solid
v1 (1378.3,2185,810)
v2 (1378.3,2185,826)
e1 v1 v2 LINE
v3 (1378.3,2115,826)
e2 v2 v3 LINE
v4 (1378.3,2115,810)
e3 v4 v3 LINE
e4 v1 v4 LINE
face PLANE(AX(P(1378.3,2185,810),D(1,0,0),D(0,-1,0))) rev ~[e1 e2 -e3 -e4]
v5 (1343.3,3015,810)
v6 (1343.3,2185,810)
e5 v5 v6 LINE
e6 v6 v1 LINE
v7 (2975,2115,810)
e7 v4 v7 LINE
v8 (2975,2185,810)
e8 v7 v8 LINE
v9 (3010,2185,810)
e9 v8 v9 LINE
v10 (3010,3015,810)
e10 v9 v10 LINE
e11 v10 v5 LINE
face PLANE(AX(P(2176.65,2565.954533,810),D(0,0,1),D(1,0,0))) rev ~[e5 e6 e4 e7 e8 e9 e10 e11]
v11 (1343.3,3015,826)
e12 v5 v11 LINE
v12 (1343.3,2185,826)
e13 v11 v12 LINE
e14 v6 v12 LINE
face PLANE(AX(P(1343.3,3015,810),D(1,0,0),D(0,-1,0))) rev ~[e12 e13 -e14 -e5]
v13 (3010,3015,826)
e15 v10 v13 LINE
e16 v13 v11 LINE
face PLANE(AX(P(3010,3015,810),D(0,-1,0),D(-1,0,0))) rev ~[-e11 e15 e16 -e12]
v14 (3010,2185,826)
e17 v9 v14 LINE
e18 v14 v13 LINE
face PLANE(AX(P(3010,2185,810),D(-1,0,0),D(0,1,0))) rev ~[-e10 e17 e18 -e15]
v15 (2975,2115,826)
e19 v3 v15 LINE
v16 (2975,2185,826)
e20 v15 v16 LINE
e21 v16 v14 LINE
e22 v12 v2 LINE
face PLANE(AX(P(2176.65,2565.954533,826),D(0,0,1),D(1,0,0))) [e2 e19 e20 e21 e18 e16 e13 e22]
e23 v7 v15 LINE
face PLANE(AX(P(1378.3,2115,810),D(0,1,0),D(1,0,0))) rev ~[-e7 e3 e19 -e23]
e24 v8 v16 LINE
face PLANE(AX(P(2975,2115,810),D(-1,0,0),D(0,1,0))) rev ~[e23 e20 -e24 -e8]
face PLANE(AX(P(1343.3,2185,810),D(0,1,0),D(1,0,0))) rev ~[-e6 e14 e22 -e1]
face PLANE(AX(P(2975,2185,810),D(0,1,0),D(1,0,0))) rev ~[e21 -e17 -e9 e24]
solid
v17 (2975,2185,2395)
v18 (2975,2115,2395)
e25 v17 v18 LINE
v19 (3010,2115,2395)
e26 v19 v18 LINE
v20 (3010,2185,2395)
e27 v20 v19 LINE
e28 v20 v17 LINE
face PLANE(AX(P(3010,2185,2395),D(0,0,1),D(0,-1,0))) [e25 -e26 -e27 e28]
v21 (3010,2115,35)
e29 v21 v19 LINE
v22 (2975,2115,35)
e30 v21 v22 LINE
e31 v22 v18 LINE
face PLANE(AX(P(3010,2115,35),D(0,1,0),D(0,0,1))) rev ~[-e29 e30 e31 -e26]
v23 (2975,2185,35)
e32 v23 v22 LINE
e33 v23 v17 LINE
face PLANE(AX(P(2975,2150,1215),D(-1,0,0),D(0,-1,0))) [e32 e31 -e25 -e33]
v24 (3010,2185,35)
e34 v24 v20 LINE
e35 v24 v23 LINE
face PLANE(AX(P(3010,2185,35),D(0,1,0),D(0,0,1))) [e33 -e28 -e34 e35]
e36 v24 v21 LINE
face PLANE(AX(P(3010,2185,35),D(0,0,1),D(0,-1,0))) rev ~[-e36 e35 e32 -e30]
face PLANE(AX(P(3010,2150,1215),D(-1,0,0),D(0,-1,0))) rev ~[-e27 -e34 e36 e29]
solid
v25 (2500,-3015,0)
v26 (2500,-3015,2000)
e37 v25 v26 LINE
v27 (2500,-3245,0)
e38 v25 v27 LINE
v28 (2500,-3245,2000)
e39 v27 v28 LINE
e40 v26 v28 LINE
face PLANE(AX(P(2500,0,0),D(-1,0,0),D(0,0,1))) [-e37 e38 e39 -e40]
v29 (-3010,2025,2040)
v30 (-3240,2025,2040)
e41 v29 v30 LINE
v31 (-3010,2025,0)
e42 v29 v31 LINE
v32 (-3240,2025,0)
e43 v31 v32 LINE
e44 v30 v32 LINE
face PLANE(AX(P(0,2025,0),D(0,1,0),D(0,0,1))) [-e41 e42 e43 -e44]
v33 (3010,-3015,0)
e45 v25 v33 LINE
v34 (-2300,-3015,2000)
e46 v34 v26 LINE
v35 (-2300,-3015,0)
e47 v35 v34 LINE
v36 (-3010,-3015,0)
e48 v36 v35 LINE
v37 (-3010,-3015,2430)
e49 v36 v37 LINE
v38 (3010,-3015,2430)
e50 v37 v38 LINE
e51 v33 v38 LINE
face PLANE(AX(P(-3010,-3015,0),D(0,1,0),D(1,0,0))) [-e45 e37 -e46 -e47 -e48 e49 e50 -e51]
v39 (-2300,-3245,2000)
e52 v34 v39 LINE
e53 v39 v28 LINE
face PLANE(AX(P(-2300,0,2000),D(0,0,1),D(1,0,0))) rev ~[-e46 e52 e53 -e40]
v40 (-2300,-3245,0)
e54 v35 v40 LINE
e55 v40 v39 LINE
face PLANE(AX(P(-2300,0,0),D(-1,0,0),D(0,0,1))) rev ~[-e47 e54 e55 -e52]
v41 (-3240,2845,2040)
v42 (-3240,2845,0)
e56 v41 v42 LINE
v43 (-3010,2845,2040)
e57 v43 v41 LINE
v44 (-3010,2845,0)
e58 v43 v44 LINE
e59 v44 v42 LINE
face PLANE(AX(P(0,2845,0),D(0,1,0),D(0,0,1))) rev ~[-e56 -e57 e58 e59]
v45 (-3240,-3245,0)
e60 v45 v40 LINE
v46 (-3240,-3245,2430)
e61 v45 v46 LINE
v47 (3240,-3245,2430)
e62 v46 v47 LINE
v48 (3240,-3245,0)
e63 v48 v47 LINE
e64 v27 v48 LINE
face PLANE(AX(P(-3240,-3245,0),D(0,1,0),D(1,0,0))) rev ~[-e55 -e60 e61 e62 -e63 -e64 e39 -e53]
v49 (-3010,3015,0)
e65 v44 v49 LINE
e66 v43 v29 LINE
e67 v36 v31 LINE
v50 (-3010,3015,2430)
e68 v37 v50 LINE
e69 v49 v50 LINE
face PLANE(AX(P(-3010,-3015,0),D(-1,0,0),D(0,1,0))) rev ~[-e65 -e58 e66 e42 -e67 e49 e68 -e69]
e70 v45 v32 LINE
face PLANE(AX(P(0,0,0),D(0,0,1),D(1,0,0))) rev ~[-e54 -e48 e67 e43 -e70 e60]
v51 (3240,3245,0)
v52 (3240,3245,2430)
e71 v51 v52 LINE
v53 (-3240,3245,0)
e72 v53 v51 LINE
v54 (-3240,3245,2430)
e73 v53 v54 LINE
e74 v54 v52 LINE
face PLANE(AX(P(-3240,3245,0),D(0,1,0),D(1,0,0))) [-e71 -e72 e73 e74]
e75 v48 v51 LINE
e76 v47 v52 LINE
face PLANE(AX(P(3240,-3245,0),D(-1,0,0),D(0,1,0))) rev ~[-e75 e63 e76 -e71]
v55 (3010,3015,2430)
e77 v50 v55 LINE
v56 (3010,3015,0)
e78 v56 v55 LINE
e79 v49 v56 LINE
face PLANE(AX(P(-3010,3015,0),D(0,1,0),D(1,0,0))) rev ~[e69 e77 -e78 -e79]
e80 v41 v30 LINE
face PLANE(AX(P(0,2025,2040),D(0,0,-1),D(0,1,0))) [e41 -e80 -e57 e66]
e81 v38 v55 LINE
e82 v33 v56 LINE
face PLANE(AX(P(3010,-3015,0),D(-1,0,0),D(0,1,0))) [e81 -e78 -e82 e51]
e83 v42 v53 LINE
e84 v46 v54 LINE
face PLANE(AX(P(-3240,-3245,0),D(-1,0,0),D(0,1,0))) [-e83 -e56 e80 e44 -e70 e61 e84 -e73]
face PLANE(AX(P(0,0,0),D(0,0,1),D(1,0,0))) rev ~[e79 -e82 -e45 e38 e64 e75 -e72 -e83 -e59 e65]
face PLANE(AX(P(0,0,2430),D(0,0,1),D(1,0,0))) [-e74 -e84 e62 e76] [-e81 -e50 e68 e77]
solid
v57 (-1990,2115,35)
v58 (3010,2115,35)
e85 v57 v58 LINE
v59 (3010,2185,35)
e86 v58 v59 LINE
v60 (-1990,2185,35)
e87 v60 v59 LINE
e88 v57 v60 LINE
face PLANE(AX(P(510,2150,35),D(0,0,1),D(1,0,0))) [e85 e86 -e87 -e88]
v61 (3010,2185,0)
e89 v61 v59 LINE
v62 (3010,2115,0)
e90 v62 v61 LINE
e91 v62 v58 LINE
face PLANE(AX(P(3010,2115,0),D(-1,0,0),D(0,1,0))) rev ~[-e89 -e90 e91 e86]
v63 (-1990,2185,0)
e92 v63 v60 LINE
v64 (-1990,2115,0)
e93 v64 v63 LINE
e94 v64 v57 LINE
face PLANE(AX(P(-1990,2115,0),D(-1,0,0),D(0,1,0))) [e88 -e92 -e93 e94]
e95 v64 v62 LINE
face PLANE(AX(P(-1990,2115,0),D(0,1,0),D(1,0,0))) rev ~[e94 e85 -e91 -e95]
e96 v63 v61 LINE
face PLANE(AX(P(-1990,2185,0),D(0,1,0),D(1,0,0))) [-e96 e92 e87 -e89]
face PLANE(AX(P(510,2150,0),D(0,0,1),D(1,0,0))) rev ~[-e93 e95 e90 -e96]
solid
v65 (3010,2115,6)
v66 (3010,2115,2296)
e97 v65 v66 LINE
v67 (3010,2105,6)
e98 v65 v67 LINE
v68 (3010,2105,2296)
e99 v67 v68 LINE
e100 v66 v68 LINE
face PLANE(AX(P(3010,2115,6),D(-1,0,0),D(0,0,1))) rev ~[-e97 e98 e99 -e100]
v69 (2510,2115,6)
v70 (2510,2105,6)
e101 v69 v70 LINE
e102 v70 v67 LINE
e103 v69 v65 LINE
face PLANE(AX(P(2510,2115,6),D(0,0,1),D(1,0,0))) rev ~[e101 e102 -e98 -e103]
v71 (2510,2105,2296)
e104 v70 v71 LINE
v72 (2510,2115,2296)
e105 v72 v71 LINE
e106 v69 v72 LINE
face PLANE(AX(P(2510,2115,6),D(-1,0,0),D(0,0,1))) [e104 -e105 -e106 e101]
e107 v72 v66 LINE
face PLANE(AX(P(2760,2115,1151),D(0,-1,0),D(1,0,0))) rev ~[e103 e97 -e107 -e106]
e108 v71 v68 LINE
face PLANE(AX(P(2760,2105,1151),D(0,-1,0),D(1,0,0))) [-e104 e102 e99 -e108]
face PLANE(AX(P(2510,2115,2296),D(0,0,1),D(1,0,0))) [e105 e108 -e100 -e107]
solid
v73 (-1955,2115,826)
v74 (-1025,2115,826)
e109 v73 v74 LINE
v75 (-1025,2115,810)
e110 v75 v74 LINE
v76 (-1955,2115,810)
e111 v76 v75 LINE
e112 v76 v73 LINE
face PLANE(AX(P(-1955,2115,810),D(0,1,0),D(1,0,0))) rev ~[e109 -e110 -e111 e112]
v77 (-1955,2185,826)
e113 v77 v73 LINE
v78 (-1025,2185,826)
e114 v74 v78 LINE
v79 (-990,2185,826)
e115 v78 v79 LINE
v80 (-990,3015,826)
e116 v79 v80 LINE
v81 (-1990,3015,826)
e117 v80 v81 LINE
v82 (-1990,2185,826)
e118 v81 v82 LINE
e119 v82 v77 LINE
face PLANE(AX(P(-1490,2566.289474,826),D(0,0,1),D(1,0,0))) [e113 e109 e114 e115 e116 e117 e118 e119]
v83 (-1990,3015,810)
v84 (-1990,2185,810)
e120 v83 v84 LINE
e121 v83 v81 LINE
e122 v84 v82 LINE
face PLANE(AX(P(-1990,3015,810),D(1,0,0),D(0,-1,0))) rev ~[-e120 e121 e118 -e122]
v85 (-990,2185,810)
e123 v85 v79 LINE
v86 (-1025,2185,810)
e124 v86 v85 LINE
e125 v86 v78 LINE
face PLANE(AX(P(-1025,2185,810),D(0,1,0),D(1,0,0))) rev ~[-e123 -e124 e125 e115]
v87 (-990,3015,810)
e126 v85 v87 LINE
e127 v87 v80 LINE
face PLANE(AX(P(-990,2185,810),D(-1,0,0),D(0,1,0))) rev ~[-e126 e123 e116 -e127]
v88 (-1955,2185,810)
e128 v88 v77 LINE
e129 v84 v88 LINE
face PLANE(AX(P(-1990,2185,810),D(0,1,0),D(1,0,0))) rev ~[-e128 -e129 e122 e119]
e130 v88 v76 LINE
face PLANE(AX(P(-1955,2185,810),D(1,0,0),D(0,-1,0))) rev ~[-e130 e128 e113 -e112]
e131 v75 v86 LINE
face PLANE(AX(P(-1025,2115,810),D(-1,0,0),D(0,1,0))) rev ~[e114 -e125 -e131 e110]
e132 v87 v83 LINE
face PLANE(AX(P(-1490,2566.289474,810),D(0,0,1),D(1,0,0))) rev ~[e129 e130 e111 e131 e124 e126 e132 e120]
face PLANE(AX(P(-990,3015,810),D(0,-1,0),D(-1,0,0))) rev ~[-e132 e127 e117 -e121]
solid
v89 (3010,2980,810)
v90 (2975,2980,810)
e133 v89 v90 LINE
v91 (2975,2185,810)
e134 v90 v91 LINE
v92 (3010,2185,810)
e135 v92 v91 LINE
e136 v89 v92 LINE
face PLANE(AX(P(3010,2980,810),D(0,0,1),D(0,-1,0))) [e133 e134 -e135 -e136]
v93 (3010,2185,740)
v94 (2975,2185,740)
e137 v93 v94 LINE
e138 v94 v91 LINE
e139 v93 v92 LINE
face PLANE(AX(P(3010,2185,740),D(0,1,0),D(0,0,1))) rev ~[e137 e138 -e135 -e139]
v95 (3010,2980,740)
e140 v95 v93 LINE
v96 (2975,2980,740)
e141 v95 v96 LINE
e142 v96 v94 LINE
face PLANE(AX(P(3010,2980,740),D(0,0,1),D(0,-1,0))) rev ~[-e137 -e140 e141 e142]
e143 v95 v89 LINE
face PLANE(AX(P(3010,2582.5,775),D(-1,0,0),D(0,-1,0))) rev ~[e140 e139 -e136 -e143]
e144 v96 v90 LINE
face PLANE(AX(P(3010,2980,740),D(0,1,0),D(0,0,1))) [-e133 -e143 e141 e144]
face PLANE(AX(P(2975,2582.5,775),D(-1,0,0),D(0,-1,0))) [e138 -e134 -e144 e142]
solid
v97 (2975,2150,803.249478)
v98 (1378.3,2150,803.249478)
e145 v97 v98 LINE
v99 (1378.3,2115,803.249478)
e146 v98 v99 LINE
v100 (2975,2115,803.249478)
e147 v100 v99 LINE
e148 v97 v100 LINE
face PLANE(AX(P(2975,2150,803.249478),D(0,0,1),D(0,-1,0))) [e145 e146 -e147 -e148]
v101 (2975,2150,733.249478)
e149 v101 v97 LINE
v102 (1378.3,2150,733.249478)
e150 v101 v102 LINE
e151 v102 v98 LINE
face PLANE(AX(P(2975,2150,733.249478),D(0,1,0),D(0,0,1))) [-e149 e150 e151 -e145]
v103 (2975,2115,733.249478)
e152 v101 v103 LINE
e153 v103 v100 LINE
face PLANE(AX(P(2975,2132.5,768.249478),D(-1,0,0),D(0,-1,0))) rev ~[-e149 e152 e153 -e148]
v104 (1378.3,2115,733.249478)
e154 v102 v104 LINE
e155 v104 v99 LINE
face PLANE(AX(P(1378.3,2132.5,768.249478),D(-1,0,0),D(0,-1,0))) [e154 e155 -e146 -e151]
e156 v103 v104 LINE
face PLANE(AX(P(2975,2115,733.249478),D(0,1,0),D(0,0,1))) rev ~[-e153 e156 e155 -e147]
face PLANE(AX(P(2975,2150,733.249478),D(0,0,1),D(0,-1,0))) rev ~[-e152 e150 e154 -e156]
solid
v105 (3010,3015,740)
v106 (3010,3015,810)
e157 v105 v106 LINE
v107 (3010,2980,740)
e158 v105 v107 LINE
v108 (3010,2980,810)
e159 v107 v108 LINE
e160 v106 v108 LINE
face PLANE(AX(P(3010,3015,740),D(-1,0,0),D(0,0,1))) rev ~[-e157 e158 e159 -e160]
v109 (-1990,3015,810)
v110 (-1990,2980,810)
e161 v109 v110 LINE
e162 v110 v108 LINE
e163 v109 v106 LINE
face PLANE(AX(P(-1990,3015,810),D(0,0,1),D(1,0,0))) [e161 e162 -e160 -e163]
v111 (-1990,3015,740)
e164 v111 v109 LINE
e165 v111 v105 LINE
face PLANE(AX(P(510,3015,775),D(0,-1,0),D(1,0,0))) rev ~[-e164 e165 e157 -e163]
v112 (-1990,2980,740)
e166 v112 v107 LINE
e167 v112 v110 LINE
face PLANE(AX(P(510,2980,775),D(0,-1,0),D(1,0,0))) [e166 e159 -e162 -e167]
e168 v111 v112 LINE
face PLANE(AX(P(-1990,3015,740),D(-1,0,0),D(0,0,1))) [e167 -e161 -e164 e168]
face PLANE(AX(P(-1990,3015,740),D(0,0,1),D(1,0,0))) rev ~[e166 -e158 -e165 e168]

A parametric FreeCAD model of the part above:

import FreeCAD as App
import Part
import Sketcher

V = App.Vector


def add_polygon(sketch, points):
    """Adds a closed chain of lines whose ends are joined by coincident constraints."""
    first, n = sketch.GeometryCount, len(points)
    for a, b in zip(points, points[1:] + points[:1]):
        sketch.addGeometry(Part.LineSegment(App.Vector(*a, 0), App.Vector(*b, 0)), False)
    for i in range(n):
        sketch.addConstraint(Sketcher.Constraint("Coincident", first + i, 2, first + (i + 1) % n, 1))

doc = App.newDocument("Part")
body = doc.addObject("PartDesign::Body", "Body")

sketch1 = doc.addObject("Sketcher::SketchObject", "Sketch")
body.addObject(sketch1)
sketch1.AttachmentSupport = (doc.XY_Plane, [""])
sketch1.MapMode = "FlatFace"
add_polygon(sketch1, [(-3240, 3245), (-3240, -3245), (3240, -3245), (3240, 3245)])
add_polygon(sketch1, [(3010, -3015), (-3010, -3015), (-3010, 3015), (3010, 3015)])
sketch1.addConstraint([
    Sketcher.Constraint("Vertical", 0),
    Sketcher.Constraint("Horizontal", 1),
    Sketcher.Constraint("Vertical", 2),
    Sketcher.Constraint("Horizontal", 3),
    Sketcher.Constraint("Horizontal", 4),
    Sketcher.Constraint("Vertical", 5),
    Sketcher.Constraint("Horizontal", 6),
    Sketcher.Constraint("Vertical", 7),
    Sketcher.Constraint("Symmetric", 0, 2, 2, 2, -1, 1),
    Sketcher.Constraint("Symmetric", 4, 2, 6, 2, -1, 1),
    Sketcher.Constraint("DistanceX", 1, 1, 1, 2, 6480.0),
    Sketcher.Constraint("DistanceX", 4, 2, 4, 1, 6020.0),
    Sketcher.Constraint("DistanceY", 0, 2, 0, 1, 6490.0),
    Sketcher.Constraint("DistanceY", 5, 1, 5, 2, 6030.0),
])
pad1 = doc.addObject("PartDesign::Pad", "Pad")
body.addObject(pad1)
pad1.Profile = sketch1
pad1.Length = 2430

sketch2 = doc.addObject("Sketcher::SketchObject", "Sketch001")
body.addObject(sketch2)
sketch2.AttachmentSupport = (doc.XZ_Plane, [""])
sketch2.MapMode = "FlatFace"
add_polygon(sketch2, [(-2300, 2000), (-2300, 0), (2500, 0), (2500, 2000)])
sketch2.addConstraint([
    Sketcher.Constraint("Vertical", 0),
    Sketcher.Constraint("Horizontal", 1),
    Sketcher.Constraint("Vertical", 2),
    Sketcher.Constraint("Horizontal", 3),
    Sketcher.Constraint("PointOnObject", 0, 2, -1),
    Sketcher.Constraint("DistanceX", 1, 1, 1, 2, 4800.0),
    Sketcher.Constraint("DistanceY", 0, 2, 0, 1, 2000.0),
    Sketcher.Constraint("DistanceX", 0, 2, -1, 1, 2300.0),
])
pocket1 = doc.addObject("PartDesign::Pocket", "Pocket")
body.addObject(pocket1)
pocket1.Profile = sketch2
pocket1.Type = "ThroughAll"
pocket1.Reversed = True

sketch3 = doc.addObject("Sketcher::SketchObject", "Sketch002")
body.addObject(sketch3)
sketch3.AttachmentSupport = (doc.YZ_Plane, [""])
sketch3.MapMode = "FlatFace"
add_polygon(sketch3, [(2025, 2040), (2025, 0), (2845, 0), (2845, 2040)])
sketch3.addConstraint([
    Sketcher.Constraint("Vertical", 0),
    Sketcher.Constraint("Horizontal", 1),
    Sketcher.Constraint("Vertical", 2),
    Sketcher.Constraint("Horizontal", 3),
    Sketcher.Constraint("PointOnObject", 0, 2, -1),
    Sketcher.Constraint("DistanceX", 1, 1, 1, 2, 820.0),
    Sketcher.Constraint("DistanceY", 0, 2, 0, 1, 2040.0),
    Sketcher.Constraint("DistanceX", -1, 1, 0, 2, 2025.0),
])
pocket2 = doc.addObject("PartDesign::Pocket", "Pocket001")
body.addObject(pocket2)
pocket2.Profile = sketch3
pocket2.Type = "ThroughAll"
body2 = doc.addObject("PartDesign::Body", "Body001")

sketch4 = doc.addObject("Sketcher::SketchObject", "Sketch003")
body2.addObject(sketch4)
sketch4.AttachmentSupport = (doc.getObject("XZ_Plane001"), [""])
sketch4.MapMode = "FlatFace"
sketch4.AttachmentOffset = App.Placement(V(0, 0, -3015), App.Rotation())
add_polygon(sketch4, [(-1990, 810), (-1990, 740), (3010, 740), (3010, 810)])
sketch4.addConstraint([
    Sketcher.Constraint("Vertical", 0),
    Sketcher.Constraint("Horizontal", 1),
    Sketcher.Constraint("Vertical", 2),
    Sketcher.Constraint("Horizontal", 3),
    Sketcher.Constraint("DistanceX", 1, 1, 1, 2, 5000.0),
    Sketcher.Constraint("DistanceY", 0, 2, 0, 1, 70.0),
    Sketcher.Constraint("DistanceX", 0, 2, -1, 1, 1990.0),
    Sketcher.Constraint("DistanceY", -1, 1, 0, 2, 740.0),
])
pad2 = doc.addObject("PartDesign::Pad", "Pad001")
body2.addObject(pad2)
pad2.Profile = sketch4
pad2.Length = 35
body3 = doc.addObject("PartDesign::Body", "Body002")

sketch5 = doc.addObject("Sketcher::SketchObject", "Sketch004")
body3.addObject(sketch5)
sketch5.AttachmentSupport = (doc.getObject("YZ_Plane002"), [""])
sketch5.MapMode = "FlatFace"
sketch5.AttachmentOffset = App.Placement(V(0, 0, 3010), App.Rotation())
add_polygon(sketch5, [(2980, 810), (2980, 740), (2185, 740), (2185, 810)])
sketch5.addConstraint([
    Sketcher.Constraint("Vertical", 0),
    Sketcher.Constraint("Horizontal", 1),
    Sketcher.Constraint("Vertical", 2),
    Sketcher.Constraint("Horizontal", 3),
    Sketcher.Constraint("DistanceX", 1, 2, 1, 1, 795.0),
    Sketcher.Constraint("DistanceY", 0, 2, 0, 1, 70.0),
    Sketcher.Constraint("DistanceX", -1, 1, 0, 2, 2980.0),
    Sketcher.Constraint("DistanceY", -1, 1, 0, 2, 740.0),
])
pad3 = doc.addObject("PartDesign::Pad", "Pad002")
body3.addObject(pad3)
pad3.Profile = sketch5
pad3.Length = 35
pad3.Reversed = True
body4 = doc.addObject("PartDesign::Body", "Body003")

sketch6 = doc.addObject("Sketcher::SketchObject", "Sketch005")
body4.addObject(sketch6)
sketch6.AttachmentSupport = (doc.getObject("YZ_Plane003"), [""])
sketch6.MapMode = "FlatFace"
sketch6.AttachmentOffset = App.Placement(V(0, 0, 3010), App.Rotation())
add_polygon(sketch6, [(2185, 2395), (2185, 35), (2115, 35), (2115, 2395)])
sketch6.addConstraint([
    Sketcher.Constraint("Vertical", 0),
    Sketcher.Constraint("Horizontal", 1),
    Sketcher.Constraint("Vertical", 2),
    Sketcher.Constraint("Horizontal", 3),
    Sketcher.Constraint("DistanceX", 1, 2, 1, 1, 70.0),
    Sketcher.Constraint("DistanceY", 0, 2, 0, 1, 2360.0),
    Sketcher.Constraint("DistanceX", -1, 1, 0, 2, 2185.0),
    Sketcher.Constraint("DistanceY", -1, 1, 0, 2, 35.0),
])
pad4 = doc.addObject("PartDesign::Pad", "Pad003")
body4.addObject(pad4)
pad4.Profile = sketch6
pad4.Length = 35
pad4.Reversed = True
body5 = doc.addObject("PartDesign::Body", "Body004")

sketch7 = doc.addObject("Sketcher::SketchObject", "Sketch006")
body5.addObject(sketch7)
sketch7.AttachmentSupport = (doc.getObject("XY_Plane004"), [""])
sketch7.MapMode = "FlatFace"
add_polygon(sketch7, [(-1990, 2185), (-1990, 2115), (3010, 2115), (3010, 2185)])
sketch7.addConstraint([
    Sketcher.Constraint("Vertical", 0),
    Sketcher.Constraint("Horizontal", 1),
    Sketcher.Constraint("Vertical", 2),
    Sketcher.Constraint("Horizontal", 3),
    Sketcher.Constraint("DistanceX", 1, 1, 1, 2, 5000.0),
    Sketcher.Constraint("DistanceY", 0, 2, 0, 1, 70.0),
    Sketcher.Constraint("DistanceX", 0, 2, -1, 1, 1990.0),
    Sketcher.Constraint("DistanceY", -1, 1, 0, 2, 2115.0),
])
pad5 = doc.addObject("PartDesign::Pad", "Pad004")
body5.addObject(pad5)
pad5.Profile = sketch7
pad5.Length = 35
body6 = doc.addObject("PartDesign::Body", "Body005")

sketch8 = doc.addObject("Sketcher::SketchObject", "Sketch007")
body6.addObject(sketch8)
sketch8.AttachmentSupport = (doc.getObject("XZ_Plane005"), [""])
sketch8.MapMode = "FlatFace"
sketch8.AttachmentOffset = App.Placement(V(0, 0, -2115), App.Rotation())
add_polygon(sketch8, [(2510, 2296), (2510, 6), (3010, 6), (3010, 2296)])
sketch8.addConstraint([
    Sketcher.Constraint("Vertical", 0),
    Sketcher.Constraint("Horizontal", 1),
    Sketcher.Constraint("Vertical", 2),
    Sketcher.Constraint("Horizontal", 3),
    Sketcher.Constraint("DistanceX", 1, 1, 1, 2, 500.0),
    Sketcher.Constraint("DistanceY", 0, 2, 0, 1, 2290.0),
    Sketcher.Constraint("DistanceX", -1, 1, 0, 2, 2510.0),
    Sketcher.Constraint("DistanceY", -1, 1, 0, 2, 6.0),
])
pad6 = doc.addObject("PartDesign::Pad", "Pad005")
body6.addObject(pad6)
pad6.Profile = sketch8
pad6.Length = 10
body7 = doc.addObject("PartDesign::Body", "Body006")

sketch9 = doc.addObject("Sketcher::SketchObject", "Sketch008")
body7.addObject(sketch9)
sketch9.AttachmentSupport = (doc.getObject("XY_Plane006"), [""])
sketch9.MapMode = "FlatFace"
sketch9.AttachmentOffset = App.Placement(V(0, 0, 810), App.Rotation())
add_polygon(sketch9, [(3010, 2185), (3010, 3015), (1343, 3015), (1343, 2185), (1378, 2185), (1378, 2115), (2975, 2115), (2975, 2185)])
sketch9.addConstraint([
    Sketcher.Constraint("Vertical", 0),
    Sketcher.Constraint("Horizontal", 1),
    Sketcher.Constraint("Vertical", 2),
    Sketcher.Constraint("Horizontal", 3),
    Sketcher.Constraint("Vertical", 4),
    Sketcher.Constraint("Horizontal", 5),
    Sketcher.Constraint("Vertical", 6),
    Sketcher.Constraint("Horizontal", 7),
    Sketcher.Constraint("Horizontal", 3, 2, 6, 2),
    Sketcher.Constraint("Equal", 3, 7),
    Sketcher.Constraint("DistanceX", 3, 1, 3, 2, 35.0),
    Sketcher.Constraint("DistanceY", 0, 1, 0, 2, 830.0),
    Sketcher.Constraint("DistanceY", 4, 2, 4, 1, 70.0),
    Sketcher.Constraint("DistanceX", 1, 2, 1, 1, 1666.7),
    Sketcher.Constraint("DistanceX", -1, 1, 0, 2, 3010.0),
    Sketcher.Constraint("DistanceY", -1, 1, 0, 2, 3015.0),
])
pad7 = doc.addObject("PartDesign::Pad", "Pad006")
body7.addObject(pad7)
pad7.Profile = sketch9
pad7.Length = 16
body8 = doc.addObject("PartDesign::Body", "Body007")

sketch10 = doc.addObject("Sketcher::SketchObject", "Sketch009")
body8.addObject(sketch10)
sketch10.AttachmentSupport = (doc.getObject("XY_Plane007"), [""])
sketch10.MapMode = "FlatFace"
sketch10.AttachmentOffset = App.Placement(V(0, 0, 810), App.Rotation())
add_polygon(sketch10, [(-990, 3015), (-1990, 3015), (-1990, 2185), (-1955, 2185), (-1955, 2115), (-1025, 2115), (-1025, 2185), (-990, 2185)])
sketch10.addConstraint([
    Sketcher.Constraint("Horizontal", 0),
    Sketcher.Constraint("Vertical", 1),
    Sketcher.Constraint("Horizontal", 2),
    Sketcher.Constraint("Vertical", 3),
    Sketcher.Constraint("Horizontal", 4),
    Sketcher.Constraint("Vertical", 5),
    Sketcher.Constraint("Horizontal", 6),
    Sketcher.Constraint("Vertical", 7),
    Sketcher.Constraint("Horizontal", 2, 2, 5, 2),
    Sketcher.Constraint("Equal", 2, 6),
    Sketcher.Constraint("DistanceX", 0, 2, 0, 1, 1000.0),
    Sketcher.Constraint("DistanceX", 2, 1, 2, 2, 35.0),
    Sketcher.Constraint("DistanceY", 1, 2, 1, 1, 830.0),
    Sketcher.Constraint("DistanceY", 3, 2, 3, 1, 70.0),
    Sketcher.Constraint("DistanceX", 0, 2, -1, 1, 1990.0),
    Sketcher.Constraint("DistanceY", -1, 1, 0, 2, 3015.0),
])
pad8 = doc.addObject("PartDesign::Pad", "Pad007")
body8.addObject(pad8)
pad8.Profile = sketch10
pad8.Length = 16
body9 = doc.addObject("PartDesign::Body", "Body008")

sketch11 = doc.addObject("Sketcher::SketchObject", "Sketch010")
body9.addObject(sketch11)
sketch11.AttachmentSupport = (doc.getObject("YZ_Plane008"), [""])
sketch11.MapMode = "FlatFace"
sketch11.AttachmentOffset = App.Placement(V(0, 0, 2975), App.Rotation())
add_polygon(sketch11, [(2150, 803), (2150, 733), (2115, 733), (2115, 803)])
sketch11.addConstraint([
    Sketcher.Constraint("Vertical", 0),
    Sketcher.Constraint("Horizontal", 1),
    Sketcher.Constraint("Vertical", 2),
    Sketcher.Constraint("Horizontal", 3),
    Sketcher.Constraint("DistanceX", 1, 2, 1, 1, 35.0),
    Sketcher.Constraint("DistanceY", 0, 2, 0, 1, 70.0),
    Sketcher.Constraint("DistanceX", -1, 1, 0, 2, 2150.0),
    Sketcher.Constraint("DistanceY", -1, 1, 0, 2, 733.249478),
])
pad9 = doc.addObject("PartDesign::Pad", "Pad008")
body9.addObject(pad9)
pad9.Profile = sketch11
pad9.Length = 1596.7
pad9.Reversed = True

doc.recompute()
